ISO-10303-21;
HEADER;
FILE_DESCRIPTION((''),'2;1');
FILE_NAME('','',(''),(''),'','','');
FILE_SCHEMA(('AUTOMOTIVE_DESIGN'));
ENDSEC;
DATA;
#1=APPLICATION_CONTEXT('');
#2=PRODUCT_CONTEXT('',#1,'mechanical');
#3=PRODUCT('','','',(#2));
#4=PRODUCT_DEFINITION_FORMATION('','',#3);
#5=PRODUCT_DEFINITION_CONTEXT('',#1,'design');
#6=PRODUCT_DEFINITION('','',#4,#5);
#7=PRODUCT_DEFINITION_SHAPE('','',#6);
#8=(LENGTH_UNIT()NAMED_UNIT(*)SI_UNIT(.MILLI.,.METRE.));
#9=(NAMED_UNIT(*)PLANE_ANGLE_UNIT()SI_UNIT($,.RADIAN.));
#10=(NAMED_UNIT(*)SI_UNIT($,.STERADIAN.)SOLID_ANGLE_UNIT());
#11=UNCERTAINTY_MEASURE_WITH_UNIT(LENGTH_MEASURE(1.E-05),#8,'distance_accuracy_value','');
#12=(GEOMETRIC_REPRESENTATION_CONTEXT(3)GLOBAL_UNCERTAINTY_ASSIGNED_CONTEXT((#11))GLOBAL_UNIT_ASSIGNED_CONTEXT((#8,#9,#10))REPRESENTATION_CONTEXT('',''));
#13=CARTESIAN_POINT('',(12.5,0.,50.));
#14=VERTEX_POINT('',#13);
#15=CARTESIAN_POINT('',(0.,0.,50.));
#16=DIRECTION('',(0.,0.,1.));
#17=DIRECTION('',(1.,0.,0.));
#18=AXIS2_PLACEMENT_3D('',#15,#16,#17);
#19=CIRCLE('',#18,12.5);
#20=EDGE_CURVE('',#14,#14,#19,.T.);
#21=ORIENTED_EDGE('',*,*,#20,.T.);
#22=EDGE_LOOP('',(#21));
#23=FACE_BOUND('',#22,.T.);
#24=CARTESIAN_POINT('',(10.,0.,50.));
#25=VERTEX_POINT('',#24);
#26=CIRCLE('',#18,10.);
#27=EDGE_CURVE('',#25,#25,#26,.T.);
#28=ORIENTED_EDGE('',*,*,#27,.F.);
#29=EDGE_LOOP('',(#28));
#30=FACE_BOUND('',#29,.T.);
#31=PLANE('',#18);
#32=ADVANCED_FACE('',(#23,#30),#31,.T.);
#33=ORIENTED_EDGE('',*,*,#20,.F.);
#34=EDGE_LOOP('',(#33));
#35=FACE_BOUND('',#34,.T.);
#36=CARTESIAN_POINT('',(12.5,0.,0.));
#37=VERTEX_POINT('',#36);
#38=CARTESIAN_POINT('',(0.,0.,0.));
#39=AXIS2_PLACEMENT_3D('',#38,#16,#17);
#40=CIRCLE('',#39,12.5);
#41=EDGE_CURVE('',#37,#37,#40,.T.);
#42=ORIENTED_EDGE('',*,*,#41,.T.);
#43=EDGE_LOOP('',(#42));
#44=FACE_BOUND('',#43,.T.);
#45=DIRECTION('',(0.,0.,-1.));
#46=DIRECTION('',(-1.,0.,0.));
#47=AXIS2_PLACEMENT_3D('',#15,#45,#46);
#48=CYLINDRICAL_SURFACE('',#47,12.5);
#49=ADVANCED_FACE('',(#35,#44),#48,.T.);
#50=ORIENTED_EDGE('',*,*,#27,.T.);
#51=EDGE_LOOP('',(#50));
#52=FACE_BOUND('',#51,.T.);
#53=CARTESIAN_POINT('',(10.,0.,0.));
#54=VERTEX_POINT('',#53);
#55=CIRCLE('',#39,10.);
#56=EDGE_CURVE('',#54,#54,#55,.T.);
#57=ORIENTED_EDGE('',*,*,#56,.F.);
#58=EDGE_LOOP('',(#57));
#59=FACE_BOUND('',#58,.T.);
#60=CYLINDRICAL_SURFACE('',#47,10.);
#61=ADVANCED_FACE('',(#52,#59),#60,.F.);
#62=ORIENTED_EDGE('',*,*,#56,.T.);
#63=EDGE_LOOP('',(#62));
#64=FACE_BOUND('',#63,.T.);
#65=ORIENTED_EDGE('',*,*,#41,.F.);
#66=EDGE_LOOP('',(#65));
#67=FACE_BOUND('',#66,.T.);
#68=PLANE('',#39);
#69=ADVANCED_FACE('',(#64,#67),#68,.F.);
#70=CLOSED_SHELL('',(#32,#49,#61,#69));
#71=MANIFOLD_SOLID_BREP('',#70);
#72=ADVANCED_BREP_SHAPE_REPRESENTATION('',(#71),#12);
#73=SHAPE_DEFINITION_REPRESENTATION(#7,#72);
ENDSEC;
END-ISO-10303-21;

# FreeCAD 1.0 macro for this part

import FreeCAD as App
import Part
import Sketcher

doc = App.newDocument("Part")
body = doc.addObject("PartDesign::Body", "Body")

# Sketch on XY plane
sketch1 = body.newObject("Sketcher::SketchObject", "Sketch")
sketch1.AttachmentSupport = (doc.getObject("XY_Plane"), [""])
sketch1.MapMode = "FlatFace"
sketch1.addGeometry([
    Part.Circle(App.Vector(0, 0, 0), App.Vector(0, 0, 1), 12.5),
    Part.Circle(App.Vector(0, 0, 0), App.Vector(0, 0, 1), 10),
], False)
sketch1.addConstraint([
    Sketcher.Constraint("Coincident", 0, 3, -1, 1),
    Sketcher.Constraint("Coincident", 1, 3, -1, 1),
    Sketcher.Constraint("Diameter", 0, 25.0),
    Sketcher.Constraint("Diameter", 1, 20.0),
])
pad1 = body.newObject("PartDesign::Pad", "Pad")
pad1.Profile = sketch1
pad1.Length = 50

doc.recompute()
